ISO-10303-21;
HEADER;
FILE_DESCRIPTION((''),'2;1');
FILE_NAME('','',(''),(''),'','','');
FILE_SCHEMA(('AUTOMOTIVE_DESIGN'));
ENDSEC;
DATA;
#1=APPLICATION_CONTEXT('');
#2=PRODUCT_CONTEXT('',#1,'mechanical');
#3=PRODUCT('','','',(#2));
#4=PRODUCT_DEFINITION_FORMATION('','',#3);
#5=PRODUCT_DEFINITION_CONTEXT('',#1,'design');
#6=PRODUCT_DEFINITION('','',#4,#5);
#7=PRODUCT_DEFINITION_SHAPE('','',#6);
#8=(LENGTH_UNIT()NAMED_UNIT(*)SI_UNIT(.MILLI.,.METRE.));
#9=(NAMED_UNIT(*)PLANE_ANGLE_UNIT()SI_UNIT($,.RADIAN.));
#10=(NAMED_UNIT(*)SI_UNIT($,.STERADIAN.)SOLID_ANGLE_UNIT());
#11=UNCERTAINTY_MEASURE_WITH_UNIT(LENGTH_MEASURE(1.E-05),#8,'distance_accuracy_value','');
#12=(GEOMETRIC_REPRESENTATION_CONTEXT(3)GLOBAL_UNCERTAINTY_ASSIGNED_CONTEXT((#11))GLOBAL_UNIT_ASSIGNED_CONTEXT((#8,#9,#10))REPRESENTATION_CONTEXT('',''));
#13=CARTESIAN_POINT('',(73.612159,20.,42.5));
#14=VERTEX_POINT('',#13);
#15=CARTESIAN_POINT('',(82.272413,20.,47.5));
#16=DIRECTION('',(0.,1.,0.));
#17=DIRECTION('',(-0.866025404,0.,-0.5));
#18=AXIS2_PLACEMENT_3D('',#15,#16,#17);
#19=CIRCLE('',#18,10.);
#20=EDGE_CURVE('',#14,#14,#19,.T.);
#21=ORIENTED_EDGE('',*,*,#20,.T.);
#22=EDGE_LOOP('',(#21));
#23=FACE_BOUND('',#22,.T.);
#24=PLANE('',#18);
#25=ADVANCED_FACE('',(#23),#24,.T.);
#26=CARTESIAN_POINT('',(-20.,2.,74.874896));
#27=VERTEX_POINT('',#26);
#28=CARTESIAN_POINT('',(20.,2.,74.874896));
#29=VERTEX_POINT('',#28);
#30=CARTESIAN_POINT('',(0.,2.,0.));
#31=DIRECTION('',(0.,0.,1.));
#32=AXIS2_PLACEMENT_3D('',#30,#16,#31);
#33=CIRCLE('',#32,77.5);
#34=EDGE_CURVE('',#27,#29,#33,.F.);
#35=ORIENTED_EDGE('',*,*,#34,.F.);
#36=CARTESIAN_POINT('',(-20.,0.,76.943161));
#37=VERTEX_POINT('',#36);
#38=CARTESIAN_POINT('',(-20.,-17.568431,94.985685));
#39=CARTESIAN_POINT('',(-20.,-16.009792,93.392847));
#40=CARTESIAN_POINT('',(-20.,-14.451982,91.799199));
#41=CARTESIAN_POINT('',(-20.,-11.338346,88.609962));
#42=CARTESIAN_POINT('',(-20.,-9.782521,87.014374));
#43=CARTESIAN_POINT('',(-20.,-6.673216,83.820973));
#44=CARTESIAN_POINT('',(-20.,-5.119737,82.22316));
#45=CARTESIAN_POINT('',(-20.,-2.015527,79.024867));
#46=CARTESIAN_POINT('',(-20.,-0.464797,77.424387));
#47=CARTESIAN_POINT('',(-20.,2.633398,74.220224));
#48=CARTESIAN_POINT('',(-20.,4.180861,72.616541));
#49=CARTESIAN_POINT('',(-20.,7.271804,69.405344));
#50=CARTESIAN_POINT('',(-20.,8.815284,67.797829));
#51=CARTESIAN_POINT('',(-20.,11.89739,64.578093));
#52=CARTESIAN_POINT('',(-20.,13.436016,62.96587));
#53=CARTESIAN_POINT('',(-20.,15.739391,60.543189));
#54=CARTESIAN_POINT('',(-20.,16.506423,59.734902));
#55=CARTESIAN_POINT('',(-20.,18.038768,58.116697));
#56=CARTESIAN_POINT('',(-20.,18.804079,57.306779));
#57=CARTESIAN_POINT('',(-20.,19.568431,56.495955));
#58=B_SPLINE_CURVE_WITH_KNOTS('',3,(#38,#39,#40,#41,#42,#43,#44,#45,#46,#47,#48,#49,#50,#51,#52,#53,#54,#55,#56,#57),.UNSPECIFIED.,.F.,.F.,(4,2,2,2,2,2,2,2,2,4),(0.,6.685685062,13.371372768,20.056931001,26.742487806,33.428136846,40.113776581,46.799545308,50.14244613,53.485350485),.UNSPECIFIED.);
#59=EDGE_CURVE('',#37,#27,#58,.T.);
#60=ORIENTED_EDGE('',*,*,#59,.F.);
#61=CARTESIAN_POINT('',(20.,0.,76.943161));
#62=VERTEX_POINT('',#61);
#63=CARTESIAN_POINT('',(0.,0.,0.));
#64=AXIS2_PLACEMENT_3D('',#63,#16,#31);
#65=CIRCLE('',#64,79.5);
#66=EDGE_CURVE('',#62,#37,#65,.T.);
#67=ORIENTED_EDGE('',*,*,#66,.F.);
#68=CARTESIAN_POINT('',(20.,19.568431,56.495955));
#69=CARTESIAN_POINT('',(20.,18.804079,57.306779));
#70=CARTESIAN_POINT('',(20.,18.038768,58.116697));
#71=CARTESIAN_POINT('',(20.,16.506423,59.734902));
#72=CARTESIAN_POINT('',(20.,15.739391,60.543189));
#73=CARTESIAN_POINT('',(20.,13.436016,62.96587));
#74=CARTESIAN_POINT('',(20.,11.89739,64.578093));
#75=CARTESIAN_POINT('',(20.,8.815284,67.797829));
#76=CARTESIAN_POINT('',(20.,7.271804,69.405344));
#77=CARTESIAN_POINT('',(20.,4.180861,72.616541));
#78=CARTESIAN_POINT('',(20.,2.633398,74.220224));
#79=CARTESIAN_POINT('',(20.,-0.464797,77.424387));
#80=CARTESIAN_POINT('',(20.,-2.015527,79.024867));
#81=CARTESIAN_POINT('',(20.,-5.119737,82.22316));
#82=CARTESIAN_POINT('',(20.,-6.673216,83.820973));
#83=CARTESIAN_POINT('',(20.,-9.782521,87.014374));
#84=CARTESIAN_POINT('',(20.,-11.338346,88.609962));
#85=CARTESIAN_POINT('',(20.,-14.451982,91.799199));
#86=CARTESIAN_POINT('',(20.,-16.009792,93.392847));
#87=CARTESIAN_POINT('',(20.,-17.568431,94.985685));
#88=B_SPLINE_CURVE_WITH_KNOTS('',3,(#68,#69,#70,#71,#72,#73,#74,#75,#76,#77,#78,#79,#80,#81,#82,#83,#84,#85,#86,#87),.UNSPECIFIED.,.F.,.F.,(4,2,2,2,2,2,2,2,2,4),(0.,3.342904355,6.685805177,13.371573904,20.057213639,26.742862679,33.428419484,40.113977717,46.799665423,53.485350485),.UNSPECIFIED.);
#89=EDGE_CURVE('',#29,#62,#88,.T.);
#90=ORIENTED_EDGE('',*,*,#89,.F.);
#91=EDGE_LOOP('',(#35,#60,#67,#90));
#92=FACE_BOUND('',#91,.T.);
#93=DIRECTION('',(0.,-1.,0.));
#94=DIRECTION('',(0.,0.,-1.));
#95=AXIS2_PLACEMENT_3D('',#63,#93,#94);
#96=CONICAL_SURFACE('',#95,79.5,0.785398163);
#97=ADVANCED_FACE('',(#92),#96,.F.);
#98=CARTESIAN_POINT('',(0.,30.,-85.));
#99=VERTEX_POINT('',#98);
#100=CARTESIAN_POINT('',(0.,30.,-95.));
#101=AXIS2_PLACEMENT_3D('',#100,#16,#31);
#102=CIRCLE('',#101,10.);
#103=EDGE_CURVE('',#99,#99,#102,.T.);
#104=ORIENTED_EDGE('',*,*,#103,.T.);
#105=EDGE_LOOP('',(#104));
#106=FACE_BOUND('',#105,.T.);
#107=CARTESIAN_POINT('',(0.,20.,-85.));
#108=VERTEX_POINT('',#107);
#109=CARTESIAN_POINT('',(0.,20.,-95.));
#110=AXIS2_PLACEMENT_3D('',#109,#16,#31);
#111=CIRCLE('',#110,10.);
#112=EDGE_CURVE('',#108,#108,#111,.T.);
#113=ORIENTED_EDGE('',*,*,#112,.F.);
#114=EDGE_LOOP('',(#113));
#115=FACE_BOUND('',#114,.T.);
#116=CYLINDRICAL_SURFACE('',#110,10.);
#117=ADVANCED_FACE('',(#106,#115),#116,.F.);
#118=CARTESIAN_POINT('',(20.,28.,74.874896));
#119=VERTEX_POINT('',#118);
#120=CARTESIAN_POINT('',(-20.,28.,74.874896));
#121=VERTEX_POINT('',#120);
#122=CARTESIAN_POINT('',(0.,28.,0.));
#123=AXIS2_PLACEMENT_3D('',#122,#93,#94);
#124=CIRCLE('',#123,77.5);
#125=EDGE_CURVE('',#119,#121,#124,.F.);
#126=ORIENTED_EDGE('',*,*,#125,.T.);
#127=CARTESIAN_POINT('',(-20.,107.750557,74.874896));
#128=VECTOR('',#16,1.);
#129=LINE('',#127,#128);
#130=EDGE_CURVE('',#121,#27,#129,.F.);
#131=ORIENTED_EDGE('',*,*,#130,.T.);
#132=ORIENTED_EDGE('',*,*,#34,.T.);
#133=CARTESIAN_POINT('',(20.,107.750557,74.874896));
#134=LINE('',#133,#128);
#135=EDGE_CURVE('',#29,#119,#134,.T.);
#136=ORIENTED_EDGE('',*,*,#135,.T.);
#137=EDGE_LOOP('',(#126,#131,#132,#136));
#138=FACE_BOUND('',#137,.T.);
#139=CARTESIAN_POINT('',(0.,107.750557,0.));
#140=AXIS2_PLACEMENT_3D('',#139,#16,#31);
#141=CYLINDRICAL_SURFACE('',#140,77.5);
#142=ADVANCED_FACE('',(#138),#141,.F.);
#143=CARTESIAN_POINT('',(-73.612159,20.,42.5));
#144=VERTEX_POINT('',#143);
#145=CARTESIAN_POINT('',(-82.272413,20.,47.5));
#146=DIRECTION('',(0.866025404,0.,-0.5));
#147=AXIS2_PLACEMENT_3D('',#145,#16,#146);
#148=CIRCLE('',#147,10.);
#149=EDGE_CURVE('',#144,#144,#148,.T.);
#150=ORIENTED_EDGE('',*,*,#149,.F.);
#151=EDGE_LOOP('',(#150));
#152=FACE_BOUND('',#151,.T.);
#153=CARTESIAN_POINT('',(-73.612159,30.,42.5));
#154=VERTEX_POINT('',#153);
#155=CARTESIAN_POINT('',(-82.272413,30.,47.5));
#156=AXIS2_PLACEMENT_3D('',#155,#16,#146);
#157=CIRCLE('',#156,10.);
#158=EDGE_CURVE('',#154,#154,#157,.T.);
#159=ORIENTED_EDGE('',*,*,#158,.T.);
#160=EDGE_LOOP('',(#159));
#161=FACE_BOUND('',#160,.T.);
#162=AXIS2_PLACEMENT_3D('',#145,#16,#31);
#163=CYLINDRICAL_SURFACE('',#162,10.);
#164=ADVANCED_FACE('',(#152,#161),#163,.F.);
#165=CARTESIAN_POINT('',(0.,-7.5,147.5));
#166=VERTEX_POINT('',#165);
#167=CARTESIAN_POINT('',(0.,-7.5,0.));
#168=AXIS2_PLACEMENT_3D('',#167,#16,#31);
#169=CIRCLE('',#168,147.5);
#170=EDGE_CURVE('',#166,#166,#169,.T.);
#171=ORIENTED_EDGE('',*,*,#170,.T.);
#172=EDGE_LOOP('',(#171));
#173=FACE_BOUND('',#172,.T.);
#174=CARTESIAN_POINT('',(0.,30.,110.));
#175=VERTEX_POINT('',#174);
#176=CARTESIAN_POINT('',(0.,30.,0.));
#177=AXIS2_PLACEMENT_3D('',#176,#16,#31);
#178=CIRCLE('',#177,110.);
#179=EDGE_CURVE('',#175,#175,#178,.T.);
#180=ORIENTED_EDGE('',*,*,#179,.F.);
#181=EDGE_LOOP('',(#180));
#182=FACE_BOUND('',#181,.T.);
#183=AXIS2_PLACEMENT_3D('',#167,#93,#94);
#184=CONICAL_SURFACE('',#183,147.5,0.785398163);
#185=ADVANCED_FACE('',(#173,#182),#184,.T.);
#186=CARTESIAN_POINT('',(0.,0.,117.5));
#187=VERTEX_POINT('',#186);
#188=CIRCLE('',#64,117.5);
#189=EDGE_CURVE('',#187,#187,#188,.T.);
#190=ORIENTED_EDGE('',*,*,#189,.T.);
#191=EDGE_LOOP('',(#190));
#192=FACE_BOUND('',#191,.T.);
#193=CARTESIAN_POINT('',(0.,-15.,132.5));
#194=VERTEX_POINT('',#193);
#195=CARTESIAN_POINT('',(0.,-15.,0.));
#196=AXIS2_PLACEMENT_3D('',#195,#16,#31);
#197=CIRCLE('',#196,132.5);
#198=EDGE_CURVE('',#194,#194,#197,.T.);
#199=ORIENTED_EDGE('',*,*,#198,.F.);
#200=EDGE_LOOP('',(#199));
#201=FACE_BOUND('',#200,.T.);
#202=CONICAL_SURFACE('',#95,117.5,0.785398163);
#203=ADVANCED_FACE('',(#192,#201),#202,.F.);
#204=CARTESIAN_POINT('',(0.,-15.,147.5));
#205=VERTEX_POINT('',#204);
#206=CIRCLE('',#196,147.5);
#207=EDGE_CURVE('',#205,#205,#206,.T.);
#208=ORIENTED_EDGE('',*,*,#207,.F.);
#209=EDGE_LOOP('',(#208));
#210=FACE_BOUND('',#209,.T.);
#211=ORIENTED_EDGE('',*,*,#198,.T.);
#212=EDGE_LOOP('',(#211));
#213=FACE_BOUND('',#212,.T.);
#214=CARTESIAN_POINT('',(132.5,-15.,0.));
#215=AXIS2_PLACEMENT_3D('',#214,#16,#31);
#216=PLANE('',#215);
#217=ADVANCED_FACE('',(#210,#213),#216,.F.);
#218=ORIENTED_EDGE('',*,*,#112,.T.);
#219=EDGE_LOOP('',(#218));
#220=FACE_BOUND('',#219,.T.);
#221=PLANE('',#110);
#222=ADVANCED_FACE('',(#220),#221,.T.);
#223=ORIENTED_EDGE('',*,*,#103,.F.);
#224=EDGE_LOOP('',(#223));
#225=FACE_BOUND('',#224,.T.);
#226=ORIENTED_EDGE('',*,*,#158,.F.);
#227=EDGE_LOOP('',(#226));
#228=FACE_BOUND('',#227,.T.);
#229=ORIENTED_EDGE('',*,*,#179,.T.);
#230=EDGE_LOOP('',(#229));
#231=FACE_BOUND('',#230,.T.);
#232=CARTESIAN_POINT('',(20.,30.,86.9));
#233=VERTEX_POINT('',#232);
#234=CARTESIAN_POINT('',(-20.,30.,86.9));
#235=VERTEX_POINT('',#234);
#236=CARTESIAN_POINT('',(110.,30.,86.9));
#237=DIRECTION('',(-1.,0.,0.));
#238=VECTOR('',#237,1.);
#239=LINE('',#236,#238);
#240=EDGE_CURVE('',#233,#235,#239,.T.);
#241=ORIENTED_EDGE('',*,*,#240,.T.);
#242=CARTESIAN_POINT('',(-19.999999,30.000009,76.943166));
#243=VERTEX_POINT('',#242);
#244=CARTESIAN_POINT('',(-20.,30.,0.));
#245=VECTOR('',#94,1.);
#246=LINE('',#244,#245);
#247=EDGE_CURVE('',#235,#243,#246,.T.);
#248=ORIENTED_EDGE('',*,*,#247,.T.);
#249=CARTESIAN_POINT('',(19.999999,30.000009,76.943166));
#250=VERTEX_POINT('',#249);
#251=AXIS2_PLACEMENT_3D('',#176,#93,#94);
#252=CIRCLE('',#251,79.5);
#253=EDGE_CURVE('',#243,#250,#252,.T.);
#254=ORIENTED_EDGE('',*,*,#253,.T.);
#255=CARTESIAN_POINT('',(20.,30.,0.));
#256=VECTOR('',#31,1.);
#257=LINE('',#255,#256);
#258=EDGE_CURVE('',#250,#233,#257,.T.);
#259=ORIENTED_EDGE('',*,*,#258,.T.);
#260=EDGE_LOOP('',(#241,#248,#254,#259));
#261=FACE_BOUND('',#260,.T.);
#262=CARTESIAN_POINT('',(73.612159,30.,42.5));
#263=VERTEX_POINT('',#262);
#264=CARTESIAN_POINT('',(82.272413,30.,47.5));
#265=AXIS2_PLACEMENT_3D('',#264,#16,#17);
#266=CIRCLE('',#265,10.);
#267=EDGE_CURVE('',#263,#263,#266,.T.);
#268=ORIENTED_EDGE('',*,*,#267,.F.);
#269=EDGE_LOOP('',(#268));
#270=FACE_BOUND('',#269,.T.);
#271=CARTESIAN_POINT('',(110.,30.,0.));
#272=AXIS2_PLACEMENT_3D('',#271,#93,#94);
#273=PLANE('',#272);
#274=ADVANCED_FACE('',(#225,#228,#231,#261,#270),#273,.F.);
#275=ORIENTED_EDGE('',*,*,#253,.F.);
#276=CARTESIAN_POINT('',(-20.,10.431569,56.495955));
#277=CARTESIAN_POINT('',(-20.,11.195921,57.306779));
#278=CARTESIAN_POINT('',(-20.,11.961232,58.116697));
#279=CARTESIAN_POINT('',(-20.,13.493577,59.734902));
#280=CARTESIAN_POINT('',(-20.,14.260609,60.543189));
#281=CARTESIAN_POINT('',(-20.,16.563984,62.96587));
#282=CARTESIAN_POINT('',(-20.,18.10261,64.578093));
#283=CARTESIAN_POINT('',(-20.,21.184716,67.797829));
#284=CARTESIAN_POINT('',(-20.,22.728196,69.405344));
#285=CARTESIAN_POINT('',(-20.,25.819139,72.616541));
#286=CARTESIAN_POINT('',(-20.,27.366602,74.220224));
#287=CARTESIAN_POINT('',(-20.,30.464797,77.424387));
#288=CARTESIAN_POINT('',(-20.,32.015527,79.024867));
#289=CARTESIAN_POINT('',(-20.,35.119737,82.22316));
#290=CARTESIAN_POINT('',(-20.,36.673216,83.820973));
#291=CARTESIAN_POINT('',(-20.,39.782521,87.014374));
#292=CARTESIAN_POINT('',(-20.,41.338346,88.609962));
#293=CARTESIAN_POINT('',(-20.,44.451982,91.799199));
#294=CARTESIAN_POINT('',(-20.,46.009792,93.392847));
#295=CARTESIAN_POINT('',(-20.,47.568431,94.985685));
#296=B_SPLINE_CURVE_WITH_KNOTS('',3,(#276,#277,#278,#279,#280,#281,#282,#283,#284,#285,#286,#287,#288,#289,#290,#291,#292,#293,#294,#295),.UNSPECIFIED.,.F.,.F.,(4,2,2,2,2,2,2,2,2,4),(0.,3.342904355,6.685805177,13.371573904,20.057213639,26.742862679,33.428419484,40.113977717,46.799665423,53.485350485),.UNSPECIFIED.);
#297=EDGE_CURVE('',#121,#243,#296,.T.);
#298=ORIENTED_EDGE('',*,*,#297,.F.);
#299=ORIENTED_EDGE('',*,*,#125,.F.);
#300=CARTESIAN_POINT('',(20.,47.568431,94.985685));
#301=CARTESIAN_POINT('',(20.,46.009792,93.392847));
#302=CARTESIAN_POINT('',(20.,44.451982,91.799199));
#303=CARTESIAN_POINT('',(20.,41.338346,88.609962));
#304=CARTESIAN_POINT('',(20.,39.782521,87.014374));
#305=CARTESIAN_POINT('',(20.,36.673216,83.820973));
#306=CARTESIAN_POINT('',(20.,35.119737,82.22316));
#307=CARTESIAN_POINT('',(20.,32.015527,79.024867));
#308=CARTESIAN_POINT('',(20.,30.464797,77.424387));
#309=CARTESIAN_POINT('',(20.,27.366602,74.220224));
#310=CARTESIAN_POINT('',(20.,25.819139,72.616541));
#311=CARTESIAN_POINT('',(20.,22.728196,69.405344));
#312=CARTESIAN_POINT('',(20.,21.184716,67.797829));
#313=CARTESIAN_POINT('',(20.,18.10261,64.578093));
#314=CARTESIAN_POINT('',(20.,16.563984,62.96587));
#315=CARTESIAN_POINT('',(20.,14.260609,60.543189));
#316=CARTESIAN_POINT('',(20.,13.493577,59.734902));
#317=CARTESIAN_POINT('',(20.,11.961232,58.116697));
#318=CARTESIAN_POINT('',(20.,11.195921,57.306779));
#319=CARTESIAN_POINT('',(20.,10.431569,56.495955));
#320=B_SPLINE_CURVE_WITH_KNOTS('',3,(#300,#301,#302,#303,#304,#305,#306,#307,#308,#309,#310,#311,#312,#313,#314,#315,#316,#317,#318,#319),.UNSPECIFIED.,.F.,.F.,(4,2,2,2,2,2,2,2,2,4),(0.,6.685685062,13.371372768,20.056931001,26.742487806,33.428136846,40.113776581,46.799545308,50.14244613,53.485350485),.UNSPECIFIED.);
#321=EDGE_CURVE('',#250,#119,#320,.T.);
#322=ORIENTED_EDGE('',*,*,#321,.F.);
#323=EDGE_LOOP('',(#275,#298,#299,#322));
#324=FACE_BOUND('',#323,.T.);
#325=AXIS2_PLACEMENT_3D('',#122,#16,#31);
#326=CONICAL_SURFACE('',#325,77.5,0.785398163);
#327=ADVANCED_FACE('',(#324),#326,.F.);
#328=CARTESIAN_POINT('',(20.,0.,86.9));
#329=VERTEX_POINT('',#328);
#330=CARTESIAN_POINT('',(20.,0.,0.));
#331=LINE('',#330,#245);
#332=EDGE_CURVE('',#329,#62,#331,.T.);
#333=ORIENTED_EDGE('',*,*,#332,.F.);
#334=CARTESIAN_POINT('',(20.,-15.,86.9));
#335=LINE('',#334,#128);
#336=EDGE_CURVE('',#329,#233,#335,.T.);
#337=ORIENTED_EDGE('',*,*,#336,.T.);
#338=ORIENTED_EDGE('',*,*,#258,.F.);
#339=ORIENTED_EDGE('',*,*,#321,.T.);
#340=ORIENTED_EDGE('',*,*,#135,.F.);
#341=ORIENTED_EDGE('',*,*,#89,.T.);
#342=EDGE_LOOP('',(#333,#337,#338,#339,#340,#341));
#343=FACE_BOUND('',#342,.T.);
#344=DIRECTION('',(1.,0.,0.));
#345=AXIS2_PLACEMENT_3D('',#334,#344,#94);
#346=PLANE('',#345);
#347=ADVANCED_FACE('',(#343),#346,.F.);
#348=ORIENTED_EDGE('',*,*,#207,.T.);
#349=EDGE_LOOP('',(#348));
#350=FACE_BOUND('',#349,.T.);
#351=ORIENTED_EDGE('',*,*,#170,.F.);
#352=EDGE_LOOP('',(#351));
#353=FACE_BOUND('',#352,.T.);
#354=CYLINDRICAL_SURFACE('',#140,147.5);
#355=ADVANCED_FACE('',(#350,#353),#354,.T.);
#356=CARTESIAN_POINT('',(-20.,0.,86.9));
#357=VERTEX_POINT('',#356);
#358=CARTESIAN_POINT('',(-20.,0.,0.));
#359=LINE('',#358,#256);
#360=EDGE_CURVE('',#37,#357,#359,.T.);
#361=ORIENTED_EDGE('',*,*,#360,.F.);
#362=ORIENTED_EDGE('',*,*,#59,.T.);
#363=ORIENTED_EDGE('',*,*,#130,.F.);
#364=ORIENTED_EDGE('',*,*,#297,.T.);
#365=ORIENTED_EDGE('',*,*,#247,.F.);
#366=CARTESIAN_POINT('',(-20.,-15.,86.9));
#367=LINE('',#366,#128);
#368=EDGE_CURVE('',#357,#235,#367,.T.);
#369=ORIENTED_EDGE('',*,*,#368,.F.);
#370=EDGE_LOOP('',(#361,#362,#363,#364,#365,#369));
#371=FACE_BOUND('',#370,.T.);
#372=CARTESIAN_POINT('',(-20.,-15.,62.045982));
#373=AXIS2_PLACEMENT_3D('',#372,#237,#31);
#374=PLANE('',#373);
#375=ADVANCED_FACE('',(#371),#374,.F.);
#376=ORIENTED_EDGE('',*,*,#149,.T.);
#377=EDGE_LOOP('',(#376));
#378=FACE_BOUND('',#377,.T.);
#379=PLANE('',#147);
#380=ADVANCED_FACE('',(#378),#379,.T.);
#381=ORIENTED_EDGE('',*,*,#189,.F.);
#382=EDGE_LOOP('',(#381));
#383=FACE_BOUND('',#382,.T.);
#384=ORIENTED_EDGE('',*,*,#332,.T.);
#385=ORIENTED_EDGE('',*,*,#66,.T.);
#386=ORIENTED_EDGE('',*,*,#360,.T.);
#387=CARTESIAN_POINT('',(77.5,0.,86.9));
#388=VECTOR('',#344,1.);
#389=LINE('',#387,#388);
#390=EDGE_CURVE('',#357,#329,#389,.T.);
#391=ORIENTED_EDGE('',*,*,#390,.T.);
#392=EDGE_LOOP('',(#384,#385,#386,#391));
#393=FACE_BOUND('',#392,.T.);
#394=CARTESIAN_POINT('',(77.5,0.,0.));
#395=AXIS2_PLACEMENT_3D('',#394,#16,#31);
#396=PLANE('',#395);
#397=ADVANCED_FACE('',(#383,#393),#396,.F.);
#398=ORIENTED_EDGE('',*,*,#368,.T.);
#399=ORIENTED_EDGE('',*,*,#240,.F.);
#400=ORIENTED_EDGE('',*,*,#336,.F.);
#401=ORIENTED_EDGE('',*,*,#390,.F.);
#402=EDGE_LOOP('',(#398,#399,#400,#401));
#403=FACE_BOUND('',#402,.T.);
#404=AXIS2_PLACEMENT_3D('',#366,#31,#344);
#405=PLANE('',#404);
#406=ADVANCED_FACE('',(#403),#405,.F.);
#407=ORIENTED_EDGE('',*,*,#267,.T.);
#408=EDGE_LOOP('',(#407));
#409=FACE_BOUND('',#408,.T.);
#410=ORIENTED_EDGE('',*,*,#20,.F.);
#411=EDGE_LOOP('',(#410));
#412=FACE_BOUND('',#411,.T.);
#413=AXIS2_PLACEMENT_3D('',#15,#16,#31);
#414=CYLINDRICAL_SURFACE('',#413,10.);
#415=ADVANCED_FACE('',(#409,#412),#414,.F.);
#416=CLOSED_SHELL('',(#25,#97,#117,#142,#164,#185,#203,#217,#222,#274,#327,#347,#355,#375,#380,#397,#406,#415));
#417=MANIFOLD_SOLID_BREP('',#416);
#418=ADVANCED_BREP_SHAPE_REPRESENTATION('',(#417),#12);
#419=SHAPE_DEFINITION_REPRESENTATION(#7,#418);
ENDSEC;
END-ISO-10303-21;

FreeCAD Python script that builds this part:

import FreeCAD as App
import Part
import Sketcher
Q = App.Units.Quantity


def edges_at(feature, points):
    """Names of the edges that pass closest to the given points."""
    edges = feature.Shape.Edges
    near = lambda p: min(range(len(edges)), key=lambda i: edges[i].distToShape(Part.Vertex(*p))[0])
    return sorted({f"Edge{near(p) + 1}" for p in points})


def add_polygon(sketch, points):
    """Adds a closed chain of lines whose ends are joined by coincident constraints."""
    first, n = sketch.GeometryCount, len(points)
    for a, b in zip(points, points[1:] + points[:1]):
        sketch.addGeometry(Part.LineSegment(App.Vector(*a, 0), App.Vector(*b, 0)), False)
    for i in range(n):
        sketch.addConstraint(Sketcher.Constraint("Coincident", first + i, 2, first + (i + 1) % n, 1))

doc = App.newDocument("Part")
body = doc.addObject("PartDesign::Body", "Body")

sketch1 = body.newObject("Sketcher::SketchObject", "Sketch")
sketch1.AttachmentSupport = (doc.getObject("XY_Plane"), [""])
sketch1.MapMode = "FlatFace"
add_polygon(sketch1, [(77.5, 30), (77.5, 0), (117.5, 0), (132.5, -15), (147.5, -15), (147.5, -7.5), (110, 30)])
sketch1.addConstraint([
    Sketcher.Constraint("Vertical", 0),
    Sketcher.Constraint("Horizontal", 1),
    Sketcher.Constraint("Horizontal", 3),
    Sketcher.Constraint("Vertical", 4),
    Sketcher.Constraint("Horizontal", 6),
    Sketcher.Constraint("PointOnObject", 0, 2, -1),
    Sketcher.Constraint("Parallel", 2, 5),
    Sketcher.Constraint("DistanceX", 1, 1, 1, 2, Q("40 mm")),
    Sketcher.Constraint("DistanceX", 3, 1, 3, 2, Q("15 mm")),
    Sketcher.Constraint("DistanceY", 0, 2, 0, 1, Q("30 mm")),
    Sketcher.Constraint("Angle", 2, Q("-45 deg")),
    Sketcher.Constraint("DistanceX", 6, 2, 6, 1, Q("32.5 mm")),
    Sketcher.Constraint("DistanceY", 2, 2, -1, 1, Q("15 mm")),
    Sketcher.Constraint("DistanceX", -1, 1, 5, 2, Q("110 mm")),
])
revolution = body.newObject("PartDesign::Revolution", "Revolution")
revolution.Profile = sketch1
revolution.ReferenceAxis = (sketch1, ["V_Axis"])
revolution.Angle = 360
doc.recompute()

chamfer = body.newObject("PartDesign::Chamfer", "Chamfer")
chamfer.Base = (revolution, edges_at(revolution, [(0, 0, -77.5), (0, 30, -77.5)]))
chamfer.Size = 2

sketch2 = body.newObject("Sketcher::SketchObject", "Sketch001")
sketch2.AttachmentSupport = (doc.getObject("XZ_Plane"), [""])
sketch2.MapMode = "FlatFace"
sketch2.AttachmentOffset = App.Placement(App.Vector(0, 0, -30), App.Rotation())
sketch2.addGeometry(Part.Circle(App.Vector(0, -95, 0), App.Vector(0, 0, 1), 10), False)
sketch2.addConstraint([
    Sketcher.Constraint("PointOnObject", 0, 3, -2),
    Sketcher.Constraint("Diameter", 0, Q("20 mm")),
    Sketcher.Constraint("DistanceY", 0, 3, -1, 1, Q("95 mm")),
])
pocket1 = body.newObject("PartDesign::Pocket", "Pocket")
pocket1.Profile = sketch2
pocket1.Length = 10
pocket1.Reversed = True
doc.recompute()

polarpattern = body.newObject("PartDesign::PolarPattern", "PolarPattern")
polarpattern.Originals = [pocket1]
polarpattern.Axis = (doc.getObject("Y_Axis"), [""])
polarpattern.Angle = 360
polarpattern.Occurrences = 3
body.Tip = polarpattern

sketch3 = body.newObject("Sketcher::SketchObject", "Sketch002")
sketch3.AttachmentSupport = (doc.getObject("XZ_Plane"), [""])
sketch3.MapMode = "FlatFace"
sketch3.AttachmentOffset = App.Placement(App.Vector(0, 0, -30), App.Rotation())
add_polygon(sketch3, [(-20, 62.045982), (-20, 86.9), (20, 86.9), (20, 62.045982)])
sketch3.addConstraint([
    Sketcher.Constraint("Vertical", 0),
    Sketcher.Constraint("Horizontal", 1),
    Sketcher.Constraint("Vertical", 2),
    Sketcher.Constraint("Horizontal", 3),
    Sketcher.Constraint("DistanceX", 1, 1, 1, 2, Q("40 mm")),
    Sketcher.Constraint("DistanceX", 0, 2, -1, 1, Q("20 mm")),
    Sketcher.Constraint("DistanceY", -1, 1, 0, 2, Q("86.9 mm")),
    Sketcher.Constraint("DistanceY", 0, 1, 0, 2, Q("24.854018 mm")),
])
pocket2 = body.newObject("PartDesign::Pocket", "Pocket001")
pocket2.Profile = sketch3
pocket2.Type = "ThroughAll"
pocket2.Midplane = True

doc.recompute()
